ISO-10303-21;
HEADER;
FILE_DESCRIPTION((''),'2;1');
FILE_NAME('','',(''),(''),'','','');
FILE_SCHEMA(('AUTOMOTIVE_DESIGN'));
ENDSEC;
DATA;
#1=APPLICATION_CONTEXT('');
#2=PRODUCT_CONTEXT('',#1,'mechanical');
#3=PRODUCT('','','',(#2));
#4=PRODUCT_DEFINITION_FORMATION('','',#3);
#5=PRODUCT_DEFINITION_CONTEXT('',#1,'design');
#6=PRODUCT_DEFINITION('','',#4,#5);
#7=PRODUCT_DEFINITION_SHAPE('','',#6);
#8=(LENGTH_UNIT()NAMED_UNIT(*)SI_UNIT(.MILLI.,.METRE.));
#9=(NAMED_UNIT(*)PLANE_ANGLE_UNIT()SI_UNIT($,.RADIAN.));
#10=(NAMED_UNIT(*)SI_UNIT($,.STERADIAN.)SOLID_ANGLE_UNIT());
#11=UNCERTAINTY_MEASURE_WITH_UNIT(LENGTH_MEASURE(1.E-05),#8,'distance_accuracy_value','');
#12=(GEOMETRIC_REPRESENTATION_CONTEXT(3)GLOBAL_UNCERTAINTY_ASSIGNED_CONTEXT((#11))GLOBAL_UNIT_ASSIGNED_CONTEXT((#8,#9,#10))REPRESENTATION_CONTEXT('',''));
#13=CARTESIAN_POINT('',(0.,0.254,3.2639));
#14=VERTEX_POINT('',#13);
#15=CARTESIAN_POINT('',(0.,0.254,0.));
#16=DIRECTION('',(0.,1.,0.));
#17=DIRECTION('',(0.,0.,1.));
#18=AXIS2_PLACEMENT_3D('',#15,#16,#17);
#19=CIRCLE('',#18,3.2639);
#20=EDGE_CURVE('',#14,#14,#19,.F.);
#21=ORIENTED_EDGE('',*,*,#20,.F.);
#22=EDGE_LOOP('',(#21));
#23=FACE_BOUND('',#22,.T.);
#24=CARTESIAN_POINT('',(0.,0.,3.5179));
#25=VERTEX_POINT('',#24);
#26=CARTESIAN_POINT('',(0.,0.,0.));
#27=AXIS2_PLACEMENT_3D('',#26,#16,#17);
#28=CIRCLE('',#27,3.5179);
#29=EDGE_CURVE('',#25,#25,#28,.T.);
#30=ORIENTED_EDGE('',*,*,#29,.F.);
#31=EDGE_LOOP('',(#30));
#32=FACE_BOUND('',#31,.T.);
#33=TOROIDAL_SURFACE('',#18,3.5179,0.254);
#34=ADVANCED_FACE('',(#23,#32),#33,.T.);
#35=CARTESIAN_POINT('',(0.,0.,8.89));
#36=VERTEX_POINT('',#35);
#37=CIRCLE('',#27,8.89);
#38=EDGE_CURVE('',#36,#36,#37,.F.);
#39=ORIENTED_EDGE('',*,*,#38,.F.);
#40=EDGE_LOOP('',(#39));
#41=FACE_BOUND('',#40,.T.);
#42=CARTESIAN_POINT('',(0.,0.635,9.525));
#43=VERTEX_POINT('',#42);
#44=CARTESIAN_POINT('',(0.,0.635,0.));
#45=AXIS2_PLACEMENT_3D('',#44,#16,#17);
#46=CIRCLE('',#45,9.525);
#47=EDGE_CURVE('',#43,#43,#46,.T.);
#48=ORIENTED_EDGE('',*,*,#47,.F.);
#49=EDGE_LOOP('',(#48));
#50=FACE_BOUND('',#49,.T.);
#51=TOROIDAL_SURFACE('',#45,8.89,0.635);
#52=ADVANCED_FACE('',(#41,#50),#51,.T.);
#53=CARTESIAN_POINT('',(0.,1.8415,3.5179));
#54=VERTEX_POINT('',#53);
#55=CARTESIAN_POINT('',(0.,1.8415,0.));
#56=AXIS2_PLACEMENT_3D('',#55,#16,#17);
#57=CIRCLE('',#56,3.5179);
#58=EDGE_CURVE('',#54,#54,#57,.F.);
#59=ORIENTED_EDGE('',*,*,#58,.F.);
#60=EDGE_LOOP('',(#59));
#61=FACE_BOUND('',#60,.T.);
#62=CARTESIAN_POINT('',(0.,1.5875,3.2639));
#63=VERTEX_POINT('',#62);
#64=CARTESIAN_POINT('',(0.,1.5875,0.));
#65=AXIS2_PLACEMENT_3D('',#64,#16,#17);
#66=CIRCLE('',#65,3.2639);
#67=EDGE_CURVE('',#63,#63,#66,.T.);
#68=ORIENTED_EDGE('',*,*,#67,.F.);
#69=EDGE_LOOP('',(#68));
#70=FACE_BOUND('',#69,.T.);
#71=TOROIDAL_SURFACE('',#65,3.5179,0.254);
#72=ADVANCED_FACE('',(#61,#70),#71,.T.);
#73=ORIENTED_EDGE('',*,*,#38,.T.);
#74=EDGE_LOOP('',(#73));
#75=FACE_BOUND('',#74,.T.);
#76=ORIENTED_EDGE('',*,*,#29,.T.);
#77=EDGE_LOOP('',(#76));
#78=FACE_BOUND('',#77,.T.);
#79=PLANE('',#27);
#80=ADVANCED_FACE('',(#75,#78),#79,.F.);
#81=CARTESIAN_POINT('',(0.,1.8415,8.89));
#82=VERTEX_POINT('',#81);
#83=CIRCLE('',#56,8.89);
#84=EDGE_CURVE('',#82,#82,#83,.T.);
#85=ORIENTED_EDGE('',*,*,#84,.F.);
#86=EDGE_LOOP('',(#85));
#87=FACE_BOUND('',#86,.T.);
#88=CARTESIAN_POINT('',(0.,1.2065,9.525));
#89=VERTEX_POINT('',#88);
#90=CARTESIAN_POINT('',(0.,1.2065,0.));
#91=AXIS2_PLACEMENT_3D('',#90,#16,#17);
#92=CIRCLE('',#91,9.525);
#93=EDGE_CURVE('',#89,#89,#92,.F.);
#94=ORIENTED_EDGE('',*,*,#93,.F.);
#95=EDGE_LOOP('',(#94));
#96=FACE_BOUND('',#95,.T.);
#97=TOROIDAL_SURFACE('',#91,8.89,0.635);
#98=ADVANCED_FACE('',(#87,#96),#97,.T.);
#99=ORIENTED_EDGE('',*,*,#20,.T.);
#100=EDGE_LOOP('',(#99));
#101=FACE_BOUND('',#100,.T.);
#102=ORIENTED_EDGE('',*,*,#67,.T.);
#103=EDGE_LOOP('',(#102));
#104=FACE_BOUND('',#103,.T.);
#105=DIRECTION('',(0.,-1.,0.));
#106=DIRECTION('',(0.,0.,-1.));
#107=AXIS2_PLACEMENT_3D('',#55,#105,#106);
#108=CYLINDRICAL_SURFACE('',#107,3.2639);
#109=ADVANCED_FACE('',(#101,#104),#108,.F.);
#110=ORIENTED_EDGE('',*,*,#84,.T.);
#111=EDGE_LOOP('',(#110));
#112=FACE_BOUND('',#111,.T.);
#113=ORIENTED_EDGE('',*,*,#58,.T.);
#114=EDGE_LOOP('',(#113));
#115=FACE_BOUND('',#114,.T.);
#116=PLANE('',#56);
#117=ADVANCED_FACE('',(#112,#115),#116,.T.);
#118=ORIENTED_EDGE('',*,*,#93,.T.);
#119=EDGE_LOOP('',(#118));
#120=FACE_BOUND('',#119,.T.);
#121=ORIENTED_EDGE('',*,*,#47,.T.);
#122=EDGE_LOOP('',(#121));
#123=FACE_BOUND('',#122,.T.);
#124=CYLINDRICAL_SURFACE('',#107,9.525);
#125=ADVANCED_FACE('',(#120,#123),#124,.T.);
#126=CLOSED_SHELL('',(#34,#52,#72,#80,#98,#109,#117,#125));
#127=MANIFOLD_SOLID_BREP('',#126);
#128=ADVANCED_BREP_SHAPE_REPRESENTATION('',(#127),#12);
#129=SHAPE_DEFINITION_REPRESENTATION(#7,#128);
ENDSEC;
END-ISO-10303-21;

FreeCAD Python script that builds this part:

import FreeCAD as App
import Part
import Sketcher
Q = App.Units.Quantity


def edges_at(feature, points):
    """Names of the edges that pass closest to the given points."""
    edges = feature.Shape.Edges
    near = lambda p: min(range(len(edges)), key=lambda i: edges[i].distToShape(Part.Vertex(*p))[0])
    return sorted({f"Edge{near(p) + 1}" for p in points})

doc = App.newDocument("Part")
body = doc.addObject("PartDesign::Body", "Body")

# Sketch on XZ plane
sketch1 = body.newObject("Sketcher::SketchObject", "Sketch")
sketch1.AttachmentSupport = (doc.getObject("XZ_Plane"), [""])
sketch1.MapMode = "FlatFace"
sketch1.addGeometry([
    Part.Circle(App.Vector(0, 0, 0), App.Vector(0, 0, 1), 9.5),
    Part.Circle(App.Vector(0, 0, 0), App.Vector(0, 0, 1), 3.3),
], False)
sketch1.addConstraint([
    Sketcher.Constraint("Coincident", 0, 3, -1, 1),
    Sketcher.Constraint("Coincident", 1, 3, -1, 1),
    Sketcher.Constraint("Diameter", 0, Q("0.75 in")),
    Sketcher.Constraint("Diameter", 1, Q("0.257 in")),
])
pad1 = body.newObject("PartDesign::Pad", "Pad")
pad1.Profile = sketch1
pad1.Length = Q("0.0725 in")
pad1.Reversed = True
doc.recompute()

fillet = body.newObject("PartDesign::Fillet", "Fillet")
fillet.Base = (pad1, edges_at(pad1, [(0, 0, -9.525), (0, 1.841, -9.525)]))
fillet.Radius = Q("0.025 in")
doc.recompute()

fillet2 = body.newObject("PartDesign::Fillet", "Fillet001")
fillet2.Base = (fillet, edges_at(fillet, [(0, 0, -3.264), (0, 1.841, -3.264)]))
fillet2.Radius = Q("0.01 in")

doc.recompute()
